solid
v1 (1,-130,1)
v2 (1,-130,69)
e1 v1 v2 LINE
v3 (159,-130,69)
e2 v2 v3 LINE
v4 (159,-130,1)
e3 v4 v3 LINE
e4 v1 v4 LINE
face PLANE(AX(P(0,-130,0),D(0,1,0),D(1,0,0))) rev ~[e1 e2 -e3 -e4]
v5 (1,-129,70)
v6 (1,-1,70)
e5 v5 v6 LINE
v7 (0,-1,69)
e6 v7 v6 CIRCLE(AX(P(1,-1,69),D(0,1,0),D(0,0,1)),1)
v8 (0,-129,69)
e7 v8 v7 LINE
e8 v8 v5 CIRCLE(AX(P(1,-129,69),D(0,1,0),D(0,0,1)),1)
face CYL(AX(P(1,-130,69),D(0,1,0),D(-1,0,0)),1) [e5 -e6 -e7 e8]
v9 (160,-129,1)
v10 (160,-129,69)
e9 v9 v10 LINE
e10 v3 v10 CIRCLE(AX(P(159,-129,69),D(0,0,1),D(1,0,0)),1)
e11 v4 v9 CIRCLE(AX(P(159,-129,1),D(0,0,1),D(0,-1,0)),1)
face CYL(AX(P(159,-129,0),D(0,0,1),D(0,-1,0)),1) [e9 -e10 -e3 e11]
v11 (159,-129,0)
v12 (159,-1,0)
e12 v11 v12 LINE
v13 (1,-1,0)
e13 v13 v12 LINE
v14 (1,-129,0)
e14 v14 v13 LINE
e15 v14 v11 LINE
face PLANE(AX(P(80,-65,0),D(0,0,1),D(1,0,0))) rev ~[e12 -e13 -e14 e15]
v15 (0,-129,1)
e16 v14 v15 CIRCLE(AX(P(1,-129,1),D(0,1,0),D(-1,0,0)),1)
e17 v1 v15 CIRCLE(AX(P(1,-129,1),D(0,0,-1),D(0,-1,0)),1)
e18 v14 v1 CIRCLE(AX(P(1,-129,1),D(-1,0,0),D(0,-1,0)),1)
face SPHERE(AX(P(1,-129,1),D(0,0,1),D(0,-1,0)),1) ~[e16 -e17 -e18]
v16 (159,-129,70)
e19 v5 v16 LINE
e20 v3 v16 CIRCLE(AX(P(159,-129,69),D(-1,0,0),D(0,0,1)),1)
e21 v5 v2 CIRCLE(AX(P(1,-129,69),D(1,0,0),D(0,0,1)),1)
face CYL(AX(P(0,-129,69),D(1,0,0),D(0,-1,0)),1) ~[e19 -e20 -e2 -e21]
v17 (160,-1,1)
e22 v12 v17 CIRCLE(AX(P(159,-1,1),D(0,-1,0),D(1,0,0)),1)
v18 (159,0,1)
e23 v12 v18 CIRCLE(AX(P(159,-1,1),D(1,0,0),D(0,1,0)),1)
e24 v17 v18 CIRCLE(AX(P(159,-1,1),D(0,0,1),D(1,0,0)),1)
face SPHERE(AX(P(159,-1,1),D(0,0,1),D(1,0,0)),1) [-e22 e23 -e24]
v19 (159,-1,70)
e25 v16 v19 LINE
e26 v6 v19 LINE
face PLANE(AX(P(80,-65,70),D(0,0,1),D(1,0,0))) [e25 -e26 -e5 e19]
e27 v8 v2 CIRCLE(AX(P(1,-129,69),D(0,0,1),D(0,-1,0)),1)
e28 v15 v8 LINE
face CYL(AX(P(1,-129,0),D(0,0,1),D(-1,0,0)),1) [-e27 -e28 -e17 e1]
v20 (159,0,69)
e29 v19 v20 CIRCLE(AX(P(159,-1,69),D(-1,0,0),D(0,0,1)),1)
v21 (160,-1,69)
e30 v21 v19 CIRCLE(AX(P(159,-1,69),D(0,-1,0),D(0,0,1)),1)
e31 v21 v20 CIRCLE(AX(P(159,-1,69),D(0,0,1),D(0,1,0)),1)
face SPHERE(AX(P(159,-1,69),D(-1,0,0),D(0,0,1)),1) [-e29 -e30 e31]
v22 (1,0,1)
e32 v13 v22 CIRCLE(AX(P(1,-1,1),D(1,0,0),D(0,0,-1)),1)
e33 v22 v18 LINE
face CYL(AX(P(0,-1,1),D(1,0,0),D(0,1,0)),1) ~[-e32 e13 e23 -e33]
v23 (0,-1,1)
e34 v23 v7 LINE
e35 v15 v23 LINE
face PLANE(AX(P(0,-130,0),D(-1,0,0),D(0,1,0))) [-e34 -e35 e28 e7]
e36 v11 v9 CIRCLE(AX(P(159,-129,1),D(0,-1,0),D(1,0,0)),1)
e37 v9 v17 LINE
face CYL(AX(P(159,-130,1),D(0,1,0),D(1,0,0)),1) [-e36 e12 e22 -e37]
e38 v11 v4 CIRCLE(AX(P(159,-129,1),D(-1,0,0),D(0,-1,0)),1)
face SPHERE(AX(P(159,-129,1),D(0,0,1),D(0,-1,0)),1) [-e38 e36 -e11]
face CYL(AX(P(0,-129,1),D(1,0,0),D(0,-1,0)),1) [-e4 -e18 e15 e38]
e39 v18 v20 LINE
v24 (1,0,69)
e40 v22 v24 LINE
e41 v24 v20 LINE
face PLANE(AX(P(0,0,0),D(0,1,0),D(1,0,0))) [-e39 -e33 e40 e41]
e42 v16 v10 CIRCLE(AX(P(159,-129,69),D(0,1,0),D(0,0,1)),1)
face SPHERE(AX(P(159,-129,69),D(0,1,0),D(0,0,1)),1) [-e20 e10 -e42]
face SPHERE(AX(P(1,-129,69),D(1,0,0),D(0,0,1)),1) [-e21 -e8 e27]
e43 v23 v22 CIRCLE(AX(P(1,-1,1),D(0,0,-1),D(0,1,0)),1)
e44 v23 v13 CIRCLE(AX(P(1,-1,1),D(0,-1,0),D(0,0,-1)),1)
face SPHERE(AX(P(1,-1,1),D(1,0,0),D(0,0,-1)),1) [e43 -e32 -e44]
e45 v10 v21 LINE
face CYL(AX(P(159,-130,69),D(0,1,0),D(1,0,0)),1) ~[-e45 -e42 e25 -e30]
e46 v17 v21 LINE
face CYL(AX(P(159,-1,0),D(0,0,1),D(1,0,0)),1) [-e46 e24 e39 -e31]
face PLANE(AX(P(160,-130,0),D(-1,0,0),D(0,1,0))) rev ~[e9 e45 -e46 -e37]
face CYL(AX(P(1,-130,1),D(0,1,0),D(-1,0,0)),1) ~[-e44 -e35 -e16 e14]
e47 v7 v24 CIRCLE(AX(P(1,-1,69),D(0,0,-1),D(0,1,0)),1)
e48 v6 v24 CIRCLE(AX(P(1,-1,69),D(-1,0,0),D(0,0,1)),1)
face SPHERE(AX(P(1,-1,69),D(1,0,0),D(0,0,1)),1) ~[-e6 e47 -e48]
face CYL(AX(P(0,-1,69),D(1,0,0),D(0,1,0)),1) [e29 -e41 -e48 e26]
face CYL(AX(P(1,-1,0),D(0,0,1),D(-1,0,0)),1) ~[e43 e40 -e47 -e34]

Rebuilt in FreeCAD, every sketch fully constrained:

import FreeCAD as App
import Part
import Sketcher

V = App.Vector
Q = App.Units.Quantity


def add_polygon(sketch, points):
    """Adds a closed chain of lines whose ends are joined by coincident constraints."""
    first, n = sketch.GeometryCount, len(points)
    for a, b in zip(points, points[1:] + points[:1]):
        sketch.addGeometry(Part.LineSegment(App.Vector(*a, 0), App.Vector(*b, 0)), False)
    for i in range(n):
        sketch.addConstraint(Sketcher.Constraint("Coincident", first + i, 2, first + (i + 1) % n, 1))

doc = App.newDocument("Part")
body = doc.addObject("PartDesign::Body", "Body")

sketch1 = doc.addObject("Sketcher::SketchObject", "Sketch")
body.addObject(sketch1)
sketch1.AttachmentSupport = (doc.XY_Plane, [""])
sketch1.MapMode = "FlatFace"
add_polygon(sketch1, [(0, 0), (0, -130), (160, -130), (160, 0)])
sketch1.addConstraint([
    Sketcher.Constraint("Vertical", 0),
    Sketcher.Constraint("Horizontal", 1),
    Sketcher.Constraint("Vertical", 2),
    Sketcher.Constraint("Horizontal", 3),
    Sketcher.Constraint("Coincident", 3, 2, -1, 1),
    Sketcher.Constraint("DistanceX", 1, 1, 1, 2, Q("160 mm")),
    Sketcher.Constraint("DistanceY", 0, 2, 0, 1, Q("130 mm")),
])
pad1 = doc.addObject("PartDesign::Pad", "Pad")
body.addObject(pad1)
pad1.Profile = sketch1
pad1.Length = 70
doc.recompute()

fillet = doc.addObject("PartDesign::Fillet", "Fillet")
body.addObject(fillet)
fillet.Base = (pad1, ["Edge1"])
fillet.UseAllEdges = True
fillet.Radius = 1

doc.recompute()
